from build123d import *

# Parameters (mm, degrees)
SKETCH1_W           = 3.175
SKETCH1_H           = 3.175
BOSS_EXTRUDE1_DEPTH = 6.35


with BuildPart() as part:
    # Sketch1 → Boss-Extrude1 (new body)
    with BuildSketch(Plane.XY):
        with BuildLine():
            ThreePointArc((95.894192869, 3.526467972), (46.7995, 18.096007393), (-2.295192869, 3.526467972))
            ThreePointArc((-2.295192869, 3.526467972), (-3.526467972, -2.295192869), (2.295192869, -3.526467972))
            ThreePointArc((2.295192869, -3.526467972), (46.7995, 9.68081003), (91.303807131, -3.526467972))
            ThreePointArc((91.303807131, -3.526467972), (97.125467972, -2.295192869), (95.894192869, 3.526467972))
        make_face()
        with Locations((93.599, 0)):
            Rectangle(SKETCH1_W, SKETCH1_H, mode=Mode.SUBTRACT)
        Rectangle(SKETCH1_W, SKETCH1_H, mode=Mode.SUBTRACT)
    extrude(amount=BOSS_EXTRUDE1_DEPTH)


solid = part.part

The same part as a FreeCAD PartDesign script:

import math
import FreeCAD as App
import Part
import Sketcher
Q = App.Units.Quantity


def add_polygon(sketch, points):
    """Adds a closed chain of lines whose ends are joined by coincident constraints."""
    first, n = sketch.GeometryCount, len(points)
    for a, b in zip(points, points[1:] + points[:1]):
        sketch.addGeometry(Part.LineSegment(App.Vector(*a, 0), App.Vector(*b, 0)), False)
    for i in range(n):
        sketch.addConstraint(Sketcher.Constraint("Coincident", first + i, 2, first + (i + 1) % n, 1))

doc = App.newDocument("Part")
body = doc.addObject("PartDesign::Body", "Body")

# Sketch on XY plane
sketch1 = doc.addObject("Sketcher::SketchObject", "Sketch")
body.addObject(sketch1)
sketch1.AttachmentSupport = (doc.XY_Plane, [""])
sketch1.MapMode = "FlatFace"
sketch1.addGeometry(Part.ArcOfCircle(Part.Circle(App.Vector(46.8, -71.9, 0), App.Vector(0, 0, 1), 90), math.radians(57), math.radians(123)), False)  # 0
sketch1.addGeometry(Part.ArcOfCircle(Part.Circle(App.Vector(0, 0, 0), App.Vector(0, 0, 1), 4.2), math.radians(123), math.radians(303)), False)  # 1
sketch1.addGeometry(Part.ArcOfCircle(Part.Circle(App.Vector(46.8, -71.9, 0), App.Vector(0, 0, 1), 81.6), math.radians(57), math.radians(123)), False)  # 2
sketch1.addGeometry(Part.ArcOfCircle(Part.Circle(App.Vector(93.6, 0, 0), App.Vector(0, 0, 1), 4.2), math.radians(-123), math.radians(57)), False)  # 3
add_polygon(sketch1, [(1.6, -1.6), (-1.6, -1.6), (-1.6, 1.6), (1.6, 1.6)])  # lines 4-7
add_polygon(sketch1, [(95.2, -1.6), (92, -1.6), (92, 1.6), (95.2, 1.6)])  # lines 8-11
sketch1.addConstraint([
    Sketcher.Constraint("Tangent", 0, 2, 1, 1),
    Sketcher.Constraint("Tangent", 1, 2, 2, 2),
    Sketcher.Constraint("Tangent", 2, 1, 3, 1),
    Sketcher.Constraint("Tangent", 3, 2, 0, 1),
    Sketcher.Constraint("Horizontal", 4),
    Sketcher.Constraint("Vertical", 5),
    Sketcher.Constraint("Horizontal", 6),
    Sketcher.Constraint("Vertical", 7),
    Sketcher.Constraint("Horizontal", 8),
    Sketcher.Constraint("Vertical", 9),
    Sketcher.Constraint("Horizontal", 10),
    Sketcher.Constraint("Vertical", 11),
    Sketcher.Constraint("Coincident", 1, 3, -1, 1),
    Sketcher.Constraint("Coincident", 2, 3, 0, 3),
    Sketcher.Constraint("Symmetric", 4, 2, 6, 2, -1, 1),
    Sketcher.Constraint("PointOnObject", 3, 3, -1),
    Sketcher.Constraint("Horizontal", 7, 2, 8, 2),
    Sketcher.Constraint("Horizontal", 6, 2, 9, 2),
    Sketcher.Constraint("Equal", 6, 8),
    Sketcher.Constraint("Equal", 10, 5),
    Sketcher.Constraint("DistanceX", 4, 2, 4, 1, Q("0.125 in")),
    Sketcher.Constraint("Radius", 1, Q("4.207599 mm")),
    Sketcher.Constraint("DistanceX", 0, 3, 8, 2, Q("1.78 in")),
    Sketcher.Constraint("DistanceX", -1, 1, 3, 3, Q("3.685 in")),
    Sketcher.Constraint("Radius", 0, Q("90.001484 mm")),
])
pad1 = doc.addObject("PartDesign::Pad", "Pad")
body.addObject(pad1)
pad1.Profile = sketch1
pad1.Length = Q("0.25 in")

doc.recompute()
